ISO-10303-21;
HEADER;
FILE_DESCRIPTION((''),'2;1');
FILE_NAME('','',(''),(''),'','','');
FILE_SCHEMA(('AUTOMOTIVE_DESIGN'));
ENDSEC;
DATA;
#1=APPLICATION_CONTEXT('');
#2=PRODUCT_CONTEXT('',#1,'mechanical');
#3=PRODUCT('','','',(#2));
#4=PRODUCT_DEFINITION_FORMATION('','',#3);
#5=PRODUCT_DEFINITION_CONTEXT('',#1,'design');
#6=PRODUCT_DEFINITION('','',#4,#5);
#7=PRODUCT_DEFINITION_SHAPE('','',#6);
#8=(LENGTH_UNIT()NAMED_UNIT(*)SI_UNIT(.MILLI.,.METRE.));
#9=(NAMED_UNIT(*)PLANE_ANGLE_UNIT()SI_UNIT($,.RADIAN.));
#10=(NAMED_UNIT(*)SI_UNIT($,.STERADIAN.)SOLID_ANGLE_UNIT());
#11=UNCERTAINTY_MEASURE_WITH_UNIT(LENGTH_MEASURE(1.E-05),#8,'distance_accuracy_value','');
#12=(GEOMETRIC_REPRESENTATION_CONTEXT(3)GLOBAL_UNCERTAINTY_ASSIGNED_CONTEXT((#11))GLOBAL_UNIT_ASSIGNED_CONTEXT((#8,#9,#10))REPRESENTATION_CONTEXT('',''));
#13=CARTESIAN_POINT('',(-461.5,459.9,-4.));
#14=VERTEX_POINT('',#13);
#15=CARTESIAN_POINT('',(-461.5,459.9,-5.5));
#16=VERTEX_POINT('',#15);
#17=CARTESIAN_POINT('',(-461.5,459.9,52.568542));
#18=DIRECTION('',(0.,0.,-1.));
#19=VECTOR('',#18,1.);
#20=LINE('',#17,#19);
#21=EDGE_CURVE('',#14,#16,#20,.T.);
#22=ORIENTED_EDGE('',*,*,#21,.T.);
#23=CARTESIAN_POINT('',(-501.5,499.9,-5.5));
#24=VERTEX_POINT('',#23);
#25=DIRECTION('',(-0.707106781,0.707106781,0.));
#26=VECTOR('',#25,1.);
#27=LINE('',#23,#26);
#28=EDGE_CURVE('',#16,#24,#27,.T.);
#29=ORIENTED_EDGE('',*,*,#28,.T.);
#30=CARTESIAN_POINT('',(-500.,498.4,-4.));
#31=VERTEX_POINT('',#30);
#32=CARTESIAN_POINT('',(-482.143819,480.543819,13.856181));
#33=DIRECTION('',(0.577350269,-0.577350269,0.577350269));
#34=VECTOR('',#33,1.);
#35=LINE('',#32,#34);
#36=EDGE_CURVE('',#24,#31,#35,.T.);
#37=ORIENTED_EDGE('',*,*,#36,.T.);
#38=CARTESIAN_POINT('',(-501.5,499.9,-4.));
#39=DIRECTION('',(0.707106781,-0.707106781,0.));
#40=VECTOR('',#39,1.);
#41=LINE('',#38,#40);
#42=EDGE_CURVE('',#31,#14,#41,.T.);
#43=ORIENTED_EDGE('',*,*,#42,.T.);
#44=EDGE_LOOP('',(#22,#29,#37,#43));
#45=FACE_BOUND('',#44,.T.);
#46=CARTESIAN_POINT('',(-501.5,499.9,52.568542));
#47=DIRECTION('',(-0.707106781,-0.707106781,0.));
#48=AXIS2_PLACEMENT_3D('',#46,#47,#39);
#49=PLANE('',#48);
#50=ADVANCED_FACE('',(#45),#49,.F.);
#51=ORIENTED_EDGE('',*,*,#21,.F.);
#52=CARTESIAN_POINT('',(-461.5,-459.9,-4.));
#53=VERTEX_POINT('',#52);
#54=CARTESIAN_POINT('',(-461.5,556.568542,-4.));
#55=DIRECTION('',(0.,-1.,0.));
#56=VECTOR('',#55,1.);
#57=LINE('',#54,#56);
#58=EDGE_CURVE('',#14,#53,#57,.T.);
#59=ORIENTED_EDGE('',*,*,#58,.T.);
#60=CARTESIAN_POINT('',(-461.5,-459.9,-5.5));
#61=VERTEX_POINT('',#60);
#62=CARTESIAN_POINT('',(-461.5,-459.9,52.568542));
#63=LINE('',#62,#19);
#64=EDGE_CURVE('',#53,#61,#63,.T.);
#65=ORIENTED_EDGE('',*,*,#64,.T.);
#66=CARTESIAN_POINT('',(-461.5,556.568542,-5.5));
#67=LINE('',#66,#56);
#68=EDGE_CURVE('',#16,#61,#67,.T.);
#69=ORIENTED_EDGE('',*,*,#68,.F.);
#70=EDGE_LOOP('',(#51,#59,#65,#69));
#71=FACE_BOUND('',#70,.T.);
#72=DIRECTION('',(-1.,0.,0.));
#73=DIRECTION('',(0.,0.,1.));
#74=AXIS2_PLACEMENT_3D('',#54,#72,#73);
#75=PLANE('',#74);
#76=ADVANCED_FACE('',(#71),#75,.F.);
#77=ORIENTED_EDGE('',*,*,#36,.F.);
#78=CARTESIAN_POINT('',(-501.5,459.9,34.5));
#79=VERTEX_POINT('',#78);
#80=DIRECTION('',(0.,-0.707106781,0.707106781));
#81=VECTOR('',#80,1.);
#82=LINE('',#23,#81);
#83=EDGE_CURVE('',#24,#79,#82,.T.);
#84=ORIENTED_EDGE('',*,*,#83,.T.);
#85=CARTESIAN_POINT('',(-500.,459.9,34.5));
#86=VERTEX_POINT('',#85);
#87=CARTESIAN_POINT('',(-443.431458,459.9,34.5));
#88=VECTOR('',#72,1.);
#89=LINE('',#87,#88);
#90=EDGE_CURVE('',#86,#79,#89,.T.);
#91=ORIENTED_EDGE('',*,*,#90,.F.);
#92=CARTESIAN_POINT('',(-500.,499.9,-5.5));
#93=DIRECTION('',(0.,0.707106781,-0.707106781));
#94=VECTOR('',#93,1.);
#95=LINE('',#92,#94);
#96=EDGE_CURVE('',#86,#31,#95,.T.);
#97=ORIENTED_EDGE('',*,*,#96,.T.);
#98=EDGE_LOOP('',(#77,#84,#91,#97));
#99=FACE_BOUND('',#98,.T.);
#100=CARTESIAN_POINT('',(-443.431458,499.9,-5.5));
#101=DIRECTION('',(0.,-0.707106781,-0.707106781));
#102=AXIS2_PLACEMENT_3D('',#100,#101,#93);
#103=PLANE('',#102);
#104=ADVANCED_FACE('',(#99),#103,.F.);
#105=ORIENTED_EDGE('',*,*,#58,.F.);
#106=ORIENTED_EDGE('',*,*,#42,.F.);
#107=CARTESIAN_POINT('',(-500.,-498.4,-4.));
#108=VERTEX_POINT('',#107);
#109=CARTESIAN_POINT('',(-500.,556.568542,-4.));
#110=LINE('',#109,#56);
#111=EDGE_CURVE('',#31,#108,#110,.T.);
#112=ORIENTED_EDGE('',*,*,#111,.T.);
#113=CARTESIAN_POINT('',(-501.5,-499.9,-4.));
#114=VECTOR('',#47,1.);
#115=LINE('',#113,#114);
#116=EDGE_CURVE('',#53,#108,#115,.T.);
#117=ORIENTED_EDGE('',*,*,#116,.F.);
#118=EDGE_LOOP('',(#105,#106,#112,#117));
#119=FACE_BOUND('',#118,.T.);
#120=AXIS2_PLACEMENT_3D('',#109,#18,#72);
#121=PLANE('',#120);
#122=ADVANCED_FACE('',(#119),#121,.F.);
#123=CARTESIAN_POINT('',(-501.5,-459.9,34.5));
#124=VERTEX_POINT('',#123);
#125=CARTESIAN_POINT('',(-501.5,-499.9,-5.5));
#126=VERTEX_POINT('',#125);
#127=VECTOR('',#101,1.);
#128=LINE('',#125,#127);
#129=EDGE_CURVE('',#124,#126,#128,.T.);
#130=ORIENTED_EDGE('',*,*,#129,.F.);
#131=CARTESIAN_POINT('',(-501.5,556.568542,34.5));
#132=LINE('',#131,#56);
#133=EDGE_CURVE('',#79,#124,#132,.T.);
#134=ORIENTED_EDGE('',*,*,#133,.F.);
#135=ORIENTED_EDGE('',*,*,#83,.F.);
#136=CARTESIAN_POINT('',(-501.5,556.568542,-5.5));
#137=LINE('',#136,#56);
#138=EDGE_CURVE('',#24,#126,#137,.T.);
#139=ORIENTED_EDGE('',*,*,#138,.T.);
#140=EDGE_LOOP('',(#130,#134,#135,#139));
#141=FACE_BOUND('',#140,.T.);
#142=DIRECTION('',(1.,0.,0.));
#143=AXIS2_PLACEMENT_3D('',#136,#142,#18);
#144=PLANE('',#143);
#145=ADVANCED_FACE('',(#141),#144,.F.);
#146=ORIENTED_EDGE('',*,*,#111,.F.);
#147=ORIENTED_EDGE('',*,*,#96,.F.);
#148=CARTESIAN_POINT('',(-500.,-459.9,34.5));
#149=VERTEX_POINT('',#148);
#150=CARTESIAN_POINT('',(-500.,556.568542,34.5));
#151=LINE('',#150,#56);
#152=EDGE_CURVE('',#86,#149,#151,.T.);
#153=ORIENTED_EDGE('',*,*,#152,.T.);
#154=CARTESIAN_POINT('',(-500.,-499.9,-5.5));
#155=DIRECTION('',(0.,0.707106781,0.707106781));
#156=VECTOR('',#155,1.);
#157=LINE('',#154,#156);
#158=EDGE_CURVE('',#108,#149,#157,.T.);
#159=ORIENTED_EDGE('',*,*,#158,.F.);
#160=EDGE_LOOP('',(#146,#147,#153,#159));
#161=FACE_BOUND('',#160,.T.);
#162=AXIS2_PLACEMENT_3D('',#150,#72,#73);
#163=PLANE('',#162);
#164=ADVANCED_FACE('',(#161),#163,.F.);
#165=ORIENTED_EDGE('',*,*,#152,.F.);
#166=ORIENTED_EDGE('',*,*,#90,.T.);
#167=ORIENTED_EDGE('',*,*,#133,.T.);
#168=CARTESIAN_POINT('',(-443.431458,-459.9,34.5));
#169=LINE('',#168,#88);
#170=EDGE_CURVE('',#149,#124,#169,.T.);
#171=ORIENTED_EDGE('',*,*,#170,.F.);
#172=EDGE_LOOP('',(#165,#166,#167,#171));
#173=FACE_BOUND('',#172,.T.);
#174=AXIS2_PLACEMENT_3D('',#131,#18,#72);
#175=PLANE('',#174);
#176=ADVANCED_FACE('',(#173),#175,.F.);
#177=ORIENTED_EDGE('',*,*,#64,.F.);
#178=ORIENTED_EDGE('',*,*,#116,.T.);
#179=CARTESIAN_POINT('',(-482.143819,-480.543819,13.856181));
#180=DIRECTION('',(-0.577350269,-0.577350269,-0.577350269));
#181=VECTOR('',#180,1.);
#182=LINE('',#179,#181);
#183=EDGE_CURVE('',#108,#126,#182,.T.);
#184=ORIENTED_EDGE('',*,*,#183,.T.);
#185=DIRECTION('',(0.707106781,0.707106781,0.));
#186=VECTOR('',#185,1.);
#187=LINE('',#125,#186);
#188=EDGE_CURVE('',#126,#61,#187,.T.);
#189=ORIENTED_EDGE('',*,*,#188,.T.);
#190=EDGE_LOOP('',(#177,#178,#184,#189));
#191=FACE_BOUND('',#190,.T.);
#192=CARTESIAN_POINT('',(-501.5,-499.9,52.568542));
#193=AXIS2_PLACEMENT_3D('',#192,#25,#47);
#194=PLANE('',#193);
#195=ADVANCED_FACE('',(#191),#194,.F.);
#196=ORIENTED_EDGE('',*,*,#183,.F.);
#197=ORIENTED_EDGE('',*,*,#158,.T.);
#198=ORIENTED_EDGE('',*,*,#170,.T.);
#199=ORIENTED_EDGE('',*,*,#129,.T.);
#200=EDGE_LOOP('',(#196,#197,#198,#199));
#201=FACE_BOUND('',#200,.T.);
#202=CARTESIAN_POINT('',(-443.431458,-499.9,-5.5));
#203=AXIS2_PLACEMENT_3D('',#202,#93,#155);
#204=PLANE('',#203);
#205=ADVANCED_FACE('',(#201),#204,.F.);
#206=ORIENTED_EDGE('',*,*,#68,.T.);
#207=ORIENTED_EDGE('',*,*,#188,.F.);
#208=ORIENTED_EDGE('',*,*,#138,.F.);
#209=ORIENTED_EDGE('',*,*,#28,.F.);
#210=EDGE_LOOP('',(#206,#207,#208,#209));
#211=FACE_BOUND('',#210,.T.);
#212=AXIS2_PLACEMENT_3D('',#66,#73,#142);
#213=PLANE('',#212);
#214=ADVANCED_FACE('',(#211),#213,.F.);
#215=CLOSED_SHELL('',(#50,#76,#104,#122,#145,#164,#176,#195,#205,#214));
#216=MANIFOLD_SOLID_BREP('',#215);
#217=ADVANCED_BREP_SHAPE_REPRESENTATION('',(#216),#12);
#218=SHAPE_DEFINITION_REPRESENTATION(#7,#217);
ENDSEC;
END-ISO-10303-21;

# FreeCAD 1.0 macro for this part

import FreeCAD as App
import Part
import Sketcher

doc = App.newDocument("Part")
params = doc.addObject("Spreadsheet::Sheet", "Params")
for row, (alias, value) in enumerate([
    ("sketch1_width", "40 mm"),
    ("sketch1_width2", "1.5 mm"),
    ("pad1_length", "499.9 mm"),
    ("pad1_length2", "499.9 mm"),
    ("sketch2_width", "40 mm"),
    ("pocket1_length", "1.5 mm"),
    ("sketch3_width", "40 mm"),
    ("pocket2_length", "1.5 mm"),
], start=1):
    params.set(f"A{row}", alias)
    params.set(f"B{row}", "=" + value)
    params.setAlias(f"B{row}", alias)

body = doc.addObject("PartDesign::Body", "Body")

# Sketch on XZ plane
sketch1 = body.newObject("Sketcher::SketchObject", "Sketch")
sketch1.AttachmentSupport = (doc.getObject("XZ_Plane"), [""])
sketch1.MapMode = "FlatFace"
sketch1.addGeometry([
    Part.LineSegment(App.Vector(-461.5, -4, 0), App.Vector(-461.5, -5.5, 0)),  # 0
    Part.LineSegment(App.Vector(-461.5, -5.5, 0), App.Vector(-501.5, -5.5, 0)),  # 1
    Part.LineSegment(App.Vector(-501.5, -5.5, 0), App.Vector(-501.5, 34.5, 0)),  # 2
    Part.LineSegment(App.Vector(-501.5, 34.5, 0), App.Vector(-500, 34.5, 0)),  # 3
    Part.LineSegment(App.Vector(-500, 34.5, 0), App.Vector(-500, -4, 0)),  # 4
    Part.LineSegment(App.Vector(-500, -4, 0), App.Vector(-461.5, -4, 0)),  # 5
], False)
sketch1.addConstraint([
    Sketcher.Constraint("Coincident", 0, 2, 1, 1),
    Sketcher.Constraint("Coincident", 1, 2, 2, 1),
    Sketcher.Constraint("Coincident", 2, 2, 3, 1),
    Sketcher.Constraint("Coincident", 3, 2, 4, 1),
    Sketcher.Constraint("Coincident", 4, 2, 5, 1),
    Sketcher.Constraint("Coincident", 5, 2, 0, 1),
    Sketcher.Constraint("Vertical", 0),
    Sketcher.Constraint("Horizontal", 1),
    Sketcher.Constraint("Vertical", 2),
    Sketcher.Constraint("Horizontal", 3),
    Sketcher.Constraint("Vertical", 4),
    Sketcher.Constraint("Horizontal", 5),
    Sketcher.Constraint("Equal", 3, 0),
    Sketcher.Constraint("Equal", 1, 2),
    Sketcher.Constraint("DistanceX", 1, 2, 1, 1, 40.0),
    Sketcher.Constraint("DistanceX", 3, 1, 3, 2, 1.5),
    Sketcher.Constraint("DistanceX", 3, 2, -1, 1, 500.0),
    Sketcher.Constraint("DistanceY", 4, 2, -1, 1, 4.0),
])
sketch1.setExpression("Constraints[14]", "Params.sketch1_width")
sketch1.setExpression("Constraints[15]", "Params.sketch1_width2")
pad1 = body.newObject("PartDesign::Pad", "Pad")
pad1.Profile = sketch1
pad1.Type = "TwoLengths"
pad1.setExpression("Length", "Params.pad1_length")
pad1.setExpression("Length2", "Params.pad1_length2")
pad1.Reversed = True

# Sketch on XY plane
sketch2 = body.newObject("Sketcher::SketchObject", "Sketch001")
sketch2.AttachmentSupport = (doc.getObject("XY_Plane"), [""])
sketch2.MapMode = "FlatFace"
sketch2.AttachmentOffset = App.Placement(App.Vector(0, 0, -5.5), App.Rotation())
sketch2.addGeometry([
    Part.LineSegment(App.Vector(-461.5, 459.9, 0), App.Vector(-501.5, 499.9, 0)),  # 0
    Part.LineSegment(App.Vector(-501.5, 499.9, 0), App.Vector(-461.5, 499.9, 0)),  # 1
    Part.LineSegment(App.Vector(-461.5, 499.9, 0), App.Vector(-461.5, 459.9, 0)),  # 2
    Part.LineSegment(App.Vector(-461.5, -459.9, 0), App.Vector(-461.5, -499.9, 0)),  # 3
    Part.LineSegment(App.Vector(-461.5, -499.9, 0), App.Vector(-501.5, -499.9, 0)),  # 4
    Part.LineSegment(App.Vector(-501.5, -499.9, 0), App.Vector(-461.5, -459.9, 0)),  # 5
], False)
sketch2.addConstraint([
    Sketcher.Constraint("Coincident", 0, 2, 1, 1),
    Sketcher.Constraint("Coincident", 1, 2, 2, 1),
    Sketcher.Constraint("Coincident", 2, 2, 0, 1),
    Sketcher.Constraint("Coincident", 3, 2, 4, 1),
    Sketcher.Constraint("Coincident", 4, 2, 5, 1),
    Sketcher.Constraint("Coincident", 5, 2, 3, 1),
    Sketcher.Constraint("Horizontal", 1),
    Sketcher.Constraint("Vertical", 2),
    Sketcher.Constraint("Vertical", 3),
    Sketcher.Constraint("Horizontal", 4),
    Sketcher.Constraint("Symmetric", 1, 2, 3, 2, -1),
    Sketcher.Constraint("Perpendicular", 0, 5),
    Sketcher.Constraint("Vertical", 0, 2, 4, 2),
    Sketcher.Constraint("Equal", 4, 2),
    Sketcher.Constraint("DistanceX", 1, 1, 1, 2, 40.0),
    Sketcher.Constraint("DistanceX", 0, 2, -1, 1, 501.5),
    Sketcher.Constraint("DistanceY", -1, 1, 0, 2, 499.9),
])
sketch2.setExpression("Constraints[14]", "Params.sketch2_width")
pocket1 = body.newObject("PartDesign::Pocket", "Pocket")
pocket1.Profile = sketch2
pocket1.setExpression("Length", "Params.pocket1_length")
pocket1.Reversed = True

# Sketch on YZ plane
sketch3 = body.newObject("Sketcher::SketchObject", "Sketch002")
sketch3.AttachmentSupport = (doc.getObject("YZ_Plane"), [""])
sketch3.MapMode = "FlatFace"
sketch3.AttachmentOffset = App.Placement(App.Vector(0, 0, -501.5), App.Rotation())
sketch3.addGeometry([
    Part.LineSegment(App.Vector(499.9, 34.5, 0), App.Vector(499.9, -5.5, 0)),  # 0
    Part.LineSegment(App.Vector(499.9, -5.5, 0), App.Vector(459.9, 34.5, 0)),  # 1
    Part.LineSegment(App.Vector(459.9, 34.5, 0), App.Vector(499.9, 34.5, 0)),  # 2
    Part.LineSegment(App.Vector(-459.9, 34.5, 0), App.Vector(-499.9, -5.5, 0)),  # 3
    Part.LineSegment(App.Vector(-499.9, -5.5, 0), App.Vector(-499.9, 34.5, 0)),  # 4
    Part.LineSegment(App.Vector(-499.9, 34.5, 0), App.Vector(-459.9, 34.5, 0)),  # 5
], False)
sketch3.addConstraint([
    Sketcher.Constraint("Coincident", 0, 2, 1, 1),
    Sketcher.Constraint("Coincident", 1, 2, 2, 1),
    Sketcher.Constraint("Coincident", 2, 2, 0, 1),
    Sketcher.Constraint("Coincident", 3, 2, 4, 1),
    Sketcher.Constraint("Coincident", 4, 2, 5, 1),
    Sketcher.Constraint("Coincident", 5, 2, 3, 1),
    Sketcher.Constraint("Vertical", 0),
    Sketcher.Constraint("Horizontal", 2),
    Sketcher.Constraint("Vertical", 4),
    Sketcher.Constraint("Horizontal", 5),
    Sketcher.Constraint("Symmetric", 0, 2, 3, 2, -2),
    Sketcher.Constraint("Symmetric", 1, 2, 5, 2, -2),
    Sketcher.Constraint("Perpendicular", 1, 3),
    Sketcher.Constraint("DistanceX", 2, 1, 2, 2, 40.0),
    Sketcher.Constraint("DistanceX", -1, 1, 0, 2, 499.9),
    Sketcher.Constraint("DistanceY", 0, 2, -1, 1, 5.5),
])
sketch3.setExpression("Constraints[13]", "Params.sketch3_width")
pocket2 = body.newObject("PartDesign::Pocket", "Pocket001")
pocket2.Profile = sketch3
pocket2.setExpression("Length", "Params.pocket2_length")
pocket2.Reversed = True

doc.recompute()
